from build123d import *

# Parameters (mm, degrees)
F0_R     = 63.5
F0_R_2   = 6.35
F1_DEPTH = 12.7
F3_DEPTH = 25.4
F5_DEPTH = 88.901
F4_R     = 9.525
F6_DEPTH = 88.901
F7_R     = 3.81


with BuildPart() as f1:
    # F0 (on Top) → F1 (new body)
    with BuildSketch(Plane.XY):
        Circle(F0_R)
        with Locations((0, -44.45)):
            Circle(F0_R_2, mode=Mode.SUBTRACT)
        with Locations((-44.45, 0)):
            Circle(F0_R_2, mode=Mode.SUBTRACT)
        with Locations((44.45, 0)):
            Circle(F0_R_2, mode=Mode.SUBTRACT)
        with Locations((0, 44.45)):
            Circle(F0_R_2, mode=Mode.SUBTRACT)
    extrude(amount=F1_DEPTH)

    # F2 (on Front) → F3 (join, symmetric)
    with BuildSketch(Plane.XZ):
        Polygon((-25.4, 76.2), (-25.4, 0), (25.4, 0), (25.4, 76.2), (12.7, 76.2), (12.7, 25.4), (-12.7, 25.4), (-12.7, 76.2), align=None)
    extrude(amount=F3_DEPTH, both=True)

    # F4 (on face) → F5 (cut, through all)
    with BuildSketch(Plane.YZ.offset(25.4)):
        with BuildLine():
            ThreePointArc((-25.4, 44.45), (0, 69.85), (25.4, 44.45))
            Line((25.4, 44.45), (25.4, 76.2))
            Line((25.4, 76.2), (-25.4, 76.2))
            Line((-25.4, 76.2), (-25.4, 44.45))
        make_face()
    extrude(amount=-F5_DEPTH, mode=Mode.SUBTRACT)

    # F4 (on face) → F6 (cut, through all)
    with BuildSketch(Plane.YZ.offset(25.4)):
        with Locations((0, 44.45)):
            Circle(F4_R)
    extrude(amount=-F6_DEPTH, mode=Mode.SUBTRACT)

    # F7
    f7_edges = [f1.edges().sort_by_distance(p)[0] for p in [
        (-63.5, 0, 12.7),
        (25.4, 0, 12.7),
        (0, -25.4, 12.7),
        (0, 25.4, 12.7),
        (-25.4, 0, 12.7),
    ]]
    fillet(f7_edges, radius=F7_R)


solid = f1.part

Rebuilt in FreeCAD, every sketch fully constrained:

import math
import FreeCAD as App
import Part
import Sketcher
Q = App.Units.Quantity


def edges_at(feature, points):
    """Names of the edges that pass closest to the given points."""
    edges = feature.Shape.Edges
    near = lambda p: min(range(len(edges)), key=lambda i: edges[i].distToShape(Part.Vertex(*p))[0])
    return sorted({f"Edge{near(p) + 1}" for p in points})


def add_polygon(sketch, points):
    """Adds a closed chain of lines whose ends are joined by coincident constraints."""
    first, n = sketch.GeometryCount, len(points)
    for a, b in zip(points, points[1:] + points[:1]):
        sketch.addGeometry(Part.LineSegment(App.Vector(*a, 0), App.Vector(*b, 0)), False)
    for i in range(n):
        sketch.addConstraint(Sketcher.Constraint("Coincident", first + i, 2, first + (i + 1) % n, 1))

doc = App.newDocument("Part")
params = doc.addObject("Spreadsheet::Sheet", "Params")
for row, (alias, value) in enumerate([
    ("sketch1_diameter", "5 in"),
    ("sketch1_diameter2", "0.5 in"),
    ("pad1_length", "0.5 in"),
    ("sketch2_width", "2 in"),
    ("sketch2_width2", "1 in"),
    ("sketch2_height", "3 in"),
    ("pad2_length", "2 in"),
    ("sketch3_radius", "1 in"),
    ("sketch3_height", "1.25 in"),
    ("sketch4_diameter", "0.75 in"),
    ("fillet_radius", "0.15 in"),
], start=1):
    params.set(f"A{row}", alias)
    params.set(f"B{row}", "=" + value)
    params.setAlias(f"B{row}", alias)

body = doc.addObject("PartDesign::Body", "Body")

sketch1 = doc.addObject("Sketcher::SketchObject", "Sketch")
body.addObject(sketch1)
sketch1.AttachmentSupport = (doc.XY_Plane, [""])
sketch1.MapMode = "FlatFace"
sketch1.addGeometry(Part.Circle(App.Vector(0, 0, 0), App.Vector(0, 0, 1), 64), False)
sketch1.addGeometry(Part.Circle(App.Vector(0, -44, 0), App.Vector(0, 0, 1), 6), False)
sketch1.addGeometry(Part.Circle(App.Vector(-44, 0, 0), App.Vector(0, 0, 1), 6), False)
sketch1.addGeometry(Part.Circle(App.Vector(44, 0, 0), App.Vector(0, 0, 1), 6), False)
sketch1.addGeometry(Part.Circle(App.Vector(0, 44, 0), App.Vector(0, 0, 1), 6), False)
sketch1.addConstraint(Sketcher.Constraint("Coincident", 0, 3, -1, 1))
sketch1.addConstraint(Sketcher.Constraint("Equal", 1, 2))
sketch1.addConstraint(Sketcher.Constraint("Equal", 2, 3))
sketch1.addConstraint(Sketcher.Constraint("Equal", 3, 4))
sketch1.addConstraint(Sketcher.Constraint("Symmetric", 2, 3, 3, 3, -1, 1))
sketch1.addConstraint(Sketcher.Constraint("Symmetric", 1, 3, 4, 3, -1, 1))
sketch1.addConstraint(Sketcher.Constraint("PointOnObject", 1, 3, -2))
sketch1.addConstraint(Sketcher.Constraint("PointOnObject", 2, 3, -1))
sketch1.addConstraint(Sketcher.Constraint("Diameter", 0, Q("5 in")))
sketch1.addConstraint(Sketcher.Constraint("Diameter", 1, Q("0.5 in")))
sketch1.addConstraint(Sketcher.Constraint("DistanceX", 2, 3, 3, 3, Q("3.5 in")))
sketch1.addConstraint(Sketcher.Constraint("DistanceY", 1, 3, 4, 3, Q("3.5 in")))
sketch1.setExpression("Constraints[8]", "Params.sketch1_diameter")
sketch1.setExpression("Constraints[9]", "Params.sketch1_diameter2")
pad1 = doc.addObject("PartDesign::Pad", "Pad")
body.addObject(pad1)
pad1.Profile = sketch1
pad1.setExpression("Length", "Params.pad1_length")

sketch2 = doc.addObject("Sketcher::SketchObject", "Sketch001")
body.addObject(sketch2)
sketch2.AttachmentSupport = (doc.XZ_Plane, [""])
sketch2.MapMode = "FlatFace"
add_polygon(sketch2, [(-25, 76), (-25, 0), (25, 0), (25, 76), (13, 76), (13, 25), (-13, 25), (-13, 76)])
sketch2.addConstraint(Sketcher.Constraint("Vertical", 0))
sketch2.addConstraint(Sketcher.Constraint("Horizontal", 1))
sketch2.addConstraint(Sketcher.Constraint("Vertical", 2))
sketch2.addConstraint(Sketcher.Constraint("Horizontal", 3))
sketch2.addConstraint(Sketcher.Constraint("Vertical", 4))
sketch2.addConstraint(Sketcher.Constraint("Horizontal", 5))
sketch2.addConstraint(Sketcher.Constraint("Vertical", 6))
sketch2.addConstraint(Sketcher.Constraint("Horizontal", 7))
sketch2.addConstraint(Sketcher.Constraint("Symmetric", 0, 2, 1, 2, -1, 1))
sketch2.addConstraint(Sketcher.Constraint("Symmetric", 3, 2, 6, 2, -2))
sketch2.addConstraint(Sketcher.Constraint("Equal", 1, 4))
sketch2.addConstraint(Sketcher.Constraint("DistanceX", 1, 1, 1, 2, Q("2 in")))
sketch2.addConstraint(Sketcher.Constraint("DistanceX", 5, 2, 5, 1, Q("1 in")))
sketch2.addConstraint(Sketcher.Constraint("DistanceY", 0, 2, 0, 1, Q("3 in")))
sketch2.setExpression("Constraints[19]", "Params.sketch2_width")
sketch2.setExpression("Constraints[20]", "Params.sketch2_width2")
sketch2.setExpression("Constraints[21]", "Params.sketch2_height")
pad2 = doc.addObject("PartDesign::Pad", "Pad001")
body.addObject(pad2)
pad2.Profile = sketch2
pad2.setExpression("Length", "Params.pad2_length")
pad2.Midplane = True

sketch3 = doc.addObject("Sketcher::SketchObject", "Sketch002")
body.addObject(sketch3)
sketch3.AttachmentSupport = (doc.YZ_Plane, [""])
sketch3.MapMode = "FlatFace"
sketch3.AttachmentOffset = App.Placement(App.Vector(0, 0, 1 * 25.4), App.Rotation())
sketch3.addGeometry(Part.ArcOfCircle(Part.Circle(App.Vector(0, 44, 0), App.Vector(0, 0, 1), 25), math.radians(0), math.radians(180)), False)
sketch3.addGeometry(Part.LineSegment(App.Vector(25, 44, 0), App.Vector(25, 76, 0)), False)
sketch3.addGeometry(Part.LineSegment(App.Vector(25, 76, 0), App.Vector(-25, 76, 0)), False)
sketch3.addGeometry(Part.LineSegment(App.Vector(-25, 76, 0), App.Vector(-25, 44, 0)), False)
sketch3.addConstraint(Sketcher.Constraint("Tangent", 0, 1, 1, 1))
sketch3.addConstraint(Sketcher.Constraint("Coincident", 1, 2, 2, 1))
sketch3.addConstraint(Sketcher.Constraint("Coincident", 2, 2, 3, 1))
sketch3.addConstraint(Sketcher.Constraint("Tangent", 3, 2, 0, 2))
sketch3.addConstraint(Sketcher.Constraint("Vertical", 1))
sketch3.addConstraint(Sketcher.Constraint("Horizontal", 2))
sketch3.addConstraint(Sketcher.Constraint("Vertical", 3))
sketch3.addConstraint(Sketcher.Constraint("PointOnObject", 0, 3, -2))
sketch3.addConstraint(Sketcher.Constraint("Radius", 0, Q("1 in")))
sketch3.addConstraint(Sketcher.Constraint("DistanceY", -1, 1, 1, 2, Q("3 in")))
sketch3.addConstraint(Sketcher.Constraint("DistanceY", 1, 1, 1, 2, Q("1.25 in")))
sketch3.setExpression("Constraints[8]", "Params.sketch3_radius")
sketch3.setExpression("Constraints[10]", "Params.sketch3_height")
pocket1 = doc.addObject("PartDesign::Pocket", "Pocket")
body.addObject(pocket1)
pocket1.Profile = sketch3
pocket1.Type = "ThroughAll"

sketch4 = doc.addObject("Sketcher::SketchObject", "Sketch003")
body.addObject(sketch4)
sketch4.AttachmentSupport = (doc.YZ_Plane, [""])
sketch4.MapMode = "FlatFace"
sketch4.AttachmentOffset = App.Placement(App.Vector(0, 0, 1 * 25.4), App.Rotation())
sketch4.addGeometry(Part.Circle(App.Vector(0, 44, 0), App.Vector(0, 0, 1), 10), False)
sketch4.addConstraint(Sketcher.Constraint("PointOnObject", 0, 3, -2))
sketch4.addConstraint(Sketcher.Constraint("Diameter", 0, Q("0.75 in")))
sketch4.addConstraint(Sketcher.Constraint("DistanceY", -1, 1, 0, 3, Q("1.75 in")))
sketch4.setExpression("Constraints[1]", "Params.sketch4_diameter")
pocket2 = doc.addObject("PartDesign::Pocket", "Pocket001")
body.addObject(pocket2)
pocket2.Profile = sketch4
pocket2.Type = "ThroughAll"
doc.recompute()

fillet = doc.addObject("PartDesign::Fillet", "Fillet")
body.addObject(fillet)
fillet.Base = (pocket2, edges_at(pocket2, [
    (-63.5, 0, 12.7),
    (25.4, 0, 12.7),
    (0, -25.4, 12.7),
    (0, 25.4, 12.7),
    (-25.4, 0, 12.7),
]))
fillet.setExpression("Radius", "Params.fillet_radius")

doc.recompute()
